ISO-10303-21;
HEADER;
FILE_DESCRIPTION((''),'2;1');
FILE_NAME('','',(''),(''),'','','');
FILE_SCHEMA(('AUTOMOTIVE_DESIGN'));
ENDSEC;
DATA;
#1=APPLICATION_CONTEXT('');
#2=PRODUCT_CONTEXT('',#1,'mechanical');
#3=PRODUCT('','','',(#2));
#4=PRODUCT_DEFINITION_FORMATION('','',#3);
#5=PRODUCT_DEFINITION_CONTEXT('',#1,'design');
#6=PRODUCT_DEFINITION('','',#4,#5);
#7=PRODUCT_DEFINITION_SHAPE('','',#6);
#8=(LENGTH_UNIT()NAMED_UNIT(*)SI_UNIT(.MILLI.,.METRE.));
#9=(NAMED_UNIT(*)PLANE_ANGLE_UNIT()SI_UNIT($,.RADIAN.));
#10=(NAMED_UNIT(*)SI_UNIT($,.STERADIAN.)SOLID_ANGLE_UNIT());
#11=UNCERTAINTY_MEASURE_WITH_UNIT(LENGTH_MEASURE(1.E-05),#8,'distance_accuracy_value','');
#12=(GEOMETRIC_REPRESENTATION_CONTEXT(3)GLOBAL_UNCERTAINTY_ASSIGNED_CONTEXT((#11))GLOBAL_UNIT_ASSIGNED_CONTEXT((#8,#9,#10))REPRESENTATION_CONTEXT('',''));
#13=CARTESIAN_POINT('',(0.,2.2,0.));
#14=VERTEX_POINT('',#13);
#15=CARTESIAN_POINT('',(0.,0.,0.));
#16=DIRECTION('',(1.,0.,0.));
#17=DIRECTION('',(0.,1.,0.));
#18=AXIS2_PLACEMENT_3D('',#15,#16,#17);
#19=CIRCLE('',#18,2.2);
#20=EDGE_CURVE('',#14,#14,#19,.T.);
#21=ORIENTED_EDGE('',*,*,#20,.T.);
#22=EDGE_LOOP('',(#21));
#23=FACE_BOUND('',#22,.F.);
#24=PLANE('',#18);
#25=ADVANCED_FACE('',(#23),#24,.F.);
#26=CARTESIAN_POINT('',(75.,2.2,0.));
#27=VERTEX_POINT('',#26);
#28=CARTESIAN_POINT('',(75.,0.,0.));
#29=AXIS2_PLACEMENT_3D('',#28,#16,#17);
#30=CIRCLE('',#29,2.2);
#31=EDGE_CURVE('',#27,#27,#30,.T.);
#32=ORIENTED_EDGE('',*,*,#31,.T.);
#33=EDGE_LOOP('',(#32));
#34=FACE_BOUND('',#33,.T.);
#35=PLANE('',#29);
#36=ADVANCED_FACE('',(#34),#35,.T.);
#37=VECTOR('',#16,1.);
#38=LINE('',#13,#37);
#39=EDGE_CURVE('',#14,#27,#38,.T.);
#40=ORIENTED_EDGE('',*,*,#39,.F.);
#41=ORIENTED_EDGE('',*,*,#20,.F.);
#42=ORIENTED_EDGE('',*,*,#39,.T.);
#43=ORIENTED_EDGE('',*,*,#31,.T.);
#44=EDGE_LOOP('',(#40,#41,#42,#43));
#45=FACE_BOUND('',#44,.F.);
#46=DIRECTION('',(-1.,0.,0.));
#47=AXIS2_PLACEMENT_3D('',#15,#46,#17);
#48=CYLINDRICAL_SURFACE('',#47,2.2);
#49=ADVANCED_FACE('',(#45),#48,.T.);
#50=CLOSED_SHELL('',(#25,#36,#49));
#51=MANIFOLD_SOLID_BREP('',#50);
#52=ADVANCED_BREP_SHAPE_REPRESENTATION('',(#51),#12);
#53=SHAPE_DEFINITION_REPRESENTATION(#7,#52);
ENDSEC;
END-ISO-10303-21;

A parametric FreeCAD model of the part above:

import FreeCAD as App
import Part
import Sketcher

doc = App.newDocument("Part")
params = doc.addObject("Spreadsheet::Sheet", "Params")
for row, (alias, value) in enumerate([
    ("sketch1_diameter", "4.4 mm"),
    ("pad1_length", "75 mm"),
], start=1):
    params.set(f"A{row}", alias)
    params.set(f"B{row}", "=" + value)
    params.setAlias(f"B{row}", alias)

body = doc.addObject("PartDesign::Body", "Body")

# Sketch on YZ plane
sketch1 = body.newObject("Sketcher::SketchObject", "Sketch")
sketch1.AttachmentSupport = (doc.getObject("YZ_Plane"), [""])
sketch1.MapMode = "FlatFace"
sketch1.addGeometry(Part.Circle(App.Vector(0, 0, 0), App.Vector(0, 0, 1), 2.2), False)
sketch1.addConstraint([
    Sketcher.Constraint("Coincident", 0, 3, -1, 1),
    Sketcher.Constraint("Diameter", 0, 4.4),
])
sketch1.setExpression("Constraints[1]", "Params.sketch1_diameter")
pad1 = body.newObject("PartDesign::Pad", "Pad")
pad1.Profile = sketch1
pad1.setExpression("Length", "Params.pad1_length")

doc.recompute()
